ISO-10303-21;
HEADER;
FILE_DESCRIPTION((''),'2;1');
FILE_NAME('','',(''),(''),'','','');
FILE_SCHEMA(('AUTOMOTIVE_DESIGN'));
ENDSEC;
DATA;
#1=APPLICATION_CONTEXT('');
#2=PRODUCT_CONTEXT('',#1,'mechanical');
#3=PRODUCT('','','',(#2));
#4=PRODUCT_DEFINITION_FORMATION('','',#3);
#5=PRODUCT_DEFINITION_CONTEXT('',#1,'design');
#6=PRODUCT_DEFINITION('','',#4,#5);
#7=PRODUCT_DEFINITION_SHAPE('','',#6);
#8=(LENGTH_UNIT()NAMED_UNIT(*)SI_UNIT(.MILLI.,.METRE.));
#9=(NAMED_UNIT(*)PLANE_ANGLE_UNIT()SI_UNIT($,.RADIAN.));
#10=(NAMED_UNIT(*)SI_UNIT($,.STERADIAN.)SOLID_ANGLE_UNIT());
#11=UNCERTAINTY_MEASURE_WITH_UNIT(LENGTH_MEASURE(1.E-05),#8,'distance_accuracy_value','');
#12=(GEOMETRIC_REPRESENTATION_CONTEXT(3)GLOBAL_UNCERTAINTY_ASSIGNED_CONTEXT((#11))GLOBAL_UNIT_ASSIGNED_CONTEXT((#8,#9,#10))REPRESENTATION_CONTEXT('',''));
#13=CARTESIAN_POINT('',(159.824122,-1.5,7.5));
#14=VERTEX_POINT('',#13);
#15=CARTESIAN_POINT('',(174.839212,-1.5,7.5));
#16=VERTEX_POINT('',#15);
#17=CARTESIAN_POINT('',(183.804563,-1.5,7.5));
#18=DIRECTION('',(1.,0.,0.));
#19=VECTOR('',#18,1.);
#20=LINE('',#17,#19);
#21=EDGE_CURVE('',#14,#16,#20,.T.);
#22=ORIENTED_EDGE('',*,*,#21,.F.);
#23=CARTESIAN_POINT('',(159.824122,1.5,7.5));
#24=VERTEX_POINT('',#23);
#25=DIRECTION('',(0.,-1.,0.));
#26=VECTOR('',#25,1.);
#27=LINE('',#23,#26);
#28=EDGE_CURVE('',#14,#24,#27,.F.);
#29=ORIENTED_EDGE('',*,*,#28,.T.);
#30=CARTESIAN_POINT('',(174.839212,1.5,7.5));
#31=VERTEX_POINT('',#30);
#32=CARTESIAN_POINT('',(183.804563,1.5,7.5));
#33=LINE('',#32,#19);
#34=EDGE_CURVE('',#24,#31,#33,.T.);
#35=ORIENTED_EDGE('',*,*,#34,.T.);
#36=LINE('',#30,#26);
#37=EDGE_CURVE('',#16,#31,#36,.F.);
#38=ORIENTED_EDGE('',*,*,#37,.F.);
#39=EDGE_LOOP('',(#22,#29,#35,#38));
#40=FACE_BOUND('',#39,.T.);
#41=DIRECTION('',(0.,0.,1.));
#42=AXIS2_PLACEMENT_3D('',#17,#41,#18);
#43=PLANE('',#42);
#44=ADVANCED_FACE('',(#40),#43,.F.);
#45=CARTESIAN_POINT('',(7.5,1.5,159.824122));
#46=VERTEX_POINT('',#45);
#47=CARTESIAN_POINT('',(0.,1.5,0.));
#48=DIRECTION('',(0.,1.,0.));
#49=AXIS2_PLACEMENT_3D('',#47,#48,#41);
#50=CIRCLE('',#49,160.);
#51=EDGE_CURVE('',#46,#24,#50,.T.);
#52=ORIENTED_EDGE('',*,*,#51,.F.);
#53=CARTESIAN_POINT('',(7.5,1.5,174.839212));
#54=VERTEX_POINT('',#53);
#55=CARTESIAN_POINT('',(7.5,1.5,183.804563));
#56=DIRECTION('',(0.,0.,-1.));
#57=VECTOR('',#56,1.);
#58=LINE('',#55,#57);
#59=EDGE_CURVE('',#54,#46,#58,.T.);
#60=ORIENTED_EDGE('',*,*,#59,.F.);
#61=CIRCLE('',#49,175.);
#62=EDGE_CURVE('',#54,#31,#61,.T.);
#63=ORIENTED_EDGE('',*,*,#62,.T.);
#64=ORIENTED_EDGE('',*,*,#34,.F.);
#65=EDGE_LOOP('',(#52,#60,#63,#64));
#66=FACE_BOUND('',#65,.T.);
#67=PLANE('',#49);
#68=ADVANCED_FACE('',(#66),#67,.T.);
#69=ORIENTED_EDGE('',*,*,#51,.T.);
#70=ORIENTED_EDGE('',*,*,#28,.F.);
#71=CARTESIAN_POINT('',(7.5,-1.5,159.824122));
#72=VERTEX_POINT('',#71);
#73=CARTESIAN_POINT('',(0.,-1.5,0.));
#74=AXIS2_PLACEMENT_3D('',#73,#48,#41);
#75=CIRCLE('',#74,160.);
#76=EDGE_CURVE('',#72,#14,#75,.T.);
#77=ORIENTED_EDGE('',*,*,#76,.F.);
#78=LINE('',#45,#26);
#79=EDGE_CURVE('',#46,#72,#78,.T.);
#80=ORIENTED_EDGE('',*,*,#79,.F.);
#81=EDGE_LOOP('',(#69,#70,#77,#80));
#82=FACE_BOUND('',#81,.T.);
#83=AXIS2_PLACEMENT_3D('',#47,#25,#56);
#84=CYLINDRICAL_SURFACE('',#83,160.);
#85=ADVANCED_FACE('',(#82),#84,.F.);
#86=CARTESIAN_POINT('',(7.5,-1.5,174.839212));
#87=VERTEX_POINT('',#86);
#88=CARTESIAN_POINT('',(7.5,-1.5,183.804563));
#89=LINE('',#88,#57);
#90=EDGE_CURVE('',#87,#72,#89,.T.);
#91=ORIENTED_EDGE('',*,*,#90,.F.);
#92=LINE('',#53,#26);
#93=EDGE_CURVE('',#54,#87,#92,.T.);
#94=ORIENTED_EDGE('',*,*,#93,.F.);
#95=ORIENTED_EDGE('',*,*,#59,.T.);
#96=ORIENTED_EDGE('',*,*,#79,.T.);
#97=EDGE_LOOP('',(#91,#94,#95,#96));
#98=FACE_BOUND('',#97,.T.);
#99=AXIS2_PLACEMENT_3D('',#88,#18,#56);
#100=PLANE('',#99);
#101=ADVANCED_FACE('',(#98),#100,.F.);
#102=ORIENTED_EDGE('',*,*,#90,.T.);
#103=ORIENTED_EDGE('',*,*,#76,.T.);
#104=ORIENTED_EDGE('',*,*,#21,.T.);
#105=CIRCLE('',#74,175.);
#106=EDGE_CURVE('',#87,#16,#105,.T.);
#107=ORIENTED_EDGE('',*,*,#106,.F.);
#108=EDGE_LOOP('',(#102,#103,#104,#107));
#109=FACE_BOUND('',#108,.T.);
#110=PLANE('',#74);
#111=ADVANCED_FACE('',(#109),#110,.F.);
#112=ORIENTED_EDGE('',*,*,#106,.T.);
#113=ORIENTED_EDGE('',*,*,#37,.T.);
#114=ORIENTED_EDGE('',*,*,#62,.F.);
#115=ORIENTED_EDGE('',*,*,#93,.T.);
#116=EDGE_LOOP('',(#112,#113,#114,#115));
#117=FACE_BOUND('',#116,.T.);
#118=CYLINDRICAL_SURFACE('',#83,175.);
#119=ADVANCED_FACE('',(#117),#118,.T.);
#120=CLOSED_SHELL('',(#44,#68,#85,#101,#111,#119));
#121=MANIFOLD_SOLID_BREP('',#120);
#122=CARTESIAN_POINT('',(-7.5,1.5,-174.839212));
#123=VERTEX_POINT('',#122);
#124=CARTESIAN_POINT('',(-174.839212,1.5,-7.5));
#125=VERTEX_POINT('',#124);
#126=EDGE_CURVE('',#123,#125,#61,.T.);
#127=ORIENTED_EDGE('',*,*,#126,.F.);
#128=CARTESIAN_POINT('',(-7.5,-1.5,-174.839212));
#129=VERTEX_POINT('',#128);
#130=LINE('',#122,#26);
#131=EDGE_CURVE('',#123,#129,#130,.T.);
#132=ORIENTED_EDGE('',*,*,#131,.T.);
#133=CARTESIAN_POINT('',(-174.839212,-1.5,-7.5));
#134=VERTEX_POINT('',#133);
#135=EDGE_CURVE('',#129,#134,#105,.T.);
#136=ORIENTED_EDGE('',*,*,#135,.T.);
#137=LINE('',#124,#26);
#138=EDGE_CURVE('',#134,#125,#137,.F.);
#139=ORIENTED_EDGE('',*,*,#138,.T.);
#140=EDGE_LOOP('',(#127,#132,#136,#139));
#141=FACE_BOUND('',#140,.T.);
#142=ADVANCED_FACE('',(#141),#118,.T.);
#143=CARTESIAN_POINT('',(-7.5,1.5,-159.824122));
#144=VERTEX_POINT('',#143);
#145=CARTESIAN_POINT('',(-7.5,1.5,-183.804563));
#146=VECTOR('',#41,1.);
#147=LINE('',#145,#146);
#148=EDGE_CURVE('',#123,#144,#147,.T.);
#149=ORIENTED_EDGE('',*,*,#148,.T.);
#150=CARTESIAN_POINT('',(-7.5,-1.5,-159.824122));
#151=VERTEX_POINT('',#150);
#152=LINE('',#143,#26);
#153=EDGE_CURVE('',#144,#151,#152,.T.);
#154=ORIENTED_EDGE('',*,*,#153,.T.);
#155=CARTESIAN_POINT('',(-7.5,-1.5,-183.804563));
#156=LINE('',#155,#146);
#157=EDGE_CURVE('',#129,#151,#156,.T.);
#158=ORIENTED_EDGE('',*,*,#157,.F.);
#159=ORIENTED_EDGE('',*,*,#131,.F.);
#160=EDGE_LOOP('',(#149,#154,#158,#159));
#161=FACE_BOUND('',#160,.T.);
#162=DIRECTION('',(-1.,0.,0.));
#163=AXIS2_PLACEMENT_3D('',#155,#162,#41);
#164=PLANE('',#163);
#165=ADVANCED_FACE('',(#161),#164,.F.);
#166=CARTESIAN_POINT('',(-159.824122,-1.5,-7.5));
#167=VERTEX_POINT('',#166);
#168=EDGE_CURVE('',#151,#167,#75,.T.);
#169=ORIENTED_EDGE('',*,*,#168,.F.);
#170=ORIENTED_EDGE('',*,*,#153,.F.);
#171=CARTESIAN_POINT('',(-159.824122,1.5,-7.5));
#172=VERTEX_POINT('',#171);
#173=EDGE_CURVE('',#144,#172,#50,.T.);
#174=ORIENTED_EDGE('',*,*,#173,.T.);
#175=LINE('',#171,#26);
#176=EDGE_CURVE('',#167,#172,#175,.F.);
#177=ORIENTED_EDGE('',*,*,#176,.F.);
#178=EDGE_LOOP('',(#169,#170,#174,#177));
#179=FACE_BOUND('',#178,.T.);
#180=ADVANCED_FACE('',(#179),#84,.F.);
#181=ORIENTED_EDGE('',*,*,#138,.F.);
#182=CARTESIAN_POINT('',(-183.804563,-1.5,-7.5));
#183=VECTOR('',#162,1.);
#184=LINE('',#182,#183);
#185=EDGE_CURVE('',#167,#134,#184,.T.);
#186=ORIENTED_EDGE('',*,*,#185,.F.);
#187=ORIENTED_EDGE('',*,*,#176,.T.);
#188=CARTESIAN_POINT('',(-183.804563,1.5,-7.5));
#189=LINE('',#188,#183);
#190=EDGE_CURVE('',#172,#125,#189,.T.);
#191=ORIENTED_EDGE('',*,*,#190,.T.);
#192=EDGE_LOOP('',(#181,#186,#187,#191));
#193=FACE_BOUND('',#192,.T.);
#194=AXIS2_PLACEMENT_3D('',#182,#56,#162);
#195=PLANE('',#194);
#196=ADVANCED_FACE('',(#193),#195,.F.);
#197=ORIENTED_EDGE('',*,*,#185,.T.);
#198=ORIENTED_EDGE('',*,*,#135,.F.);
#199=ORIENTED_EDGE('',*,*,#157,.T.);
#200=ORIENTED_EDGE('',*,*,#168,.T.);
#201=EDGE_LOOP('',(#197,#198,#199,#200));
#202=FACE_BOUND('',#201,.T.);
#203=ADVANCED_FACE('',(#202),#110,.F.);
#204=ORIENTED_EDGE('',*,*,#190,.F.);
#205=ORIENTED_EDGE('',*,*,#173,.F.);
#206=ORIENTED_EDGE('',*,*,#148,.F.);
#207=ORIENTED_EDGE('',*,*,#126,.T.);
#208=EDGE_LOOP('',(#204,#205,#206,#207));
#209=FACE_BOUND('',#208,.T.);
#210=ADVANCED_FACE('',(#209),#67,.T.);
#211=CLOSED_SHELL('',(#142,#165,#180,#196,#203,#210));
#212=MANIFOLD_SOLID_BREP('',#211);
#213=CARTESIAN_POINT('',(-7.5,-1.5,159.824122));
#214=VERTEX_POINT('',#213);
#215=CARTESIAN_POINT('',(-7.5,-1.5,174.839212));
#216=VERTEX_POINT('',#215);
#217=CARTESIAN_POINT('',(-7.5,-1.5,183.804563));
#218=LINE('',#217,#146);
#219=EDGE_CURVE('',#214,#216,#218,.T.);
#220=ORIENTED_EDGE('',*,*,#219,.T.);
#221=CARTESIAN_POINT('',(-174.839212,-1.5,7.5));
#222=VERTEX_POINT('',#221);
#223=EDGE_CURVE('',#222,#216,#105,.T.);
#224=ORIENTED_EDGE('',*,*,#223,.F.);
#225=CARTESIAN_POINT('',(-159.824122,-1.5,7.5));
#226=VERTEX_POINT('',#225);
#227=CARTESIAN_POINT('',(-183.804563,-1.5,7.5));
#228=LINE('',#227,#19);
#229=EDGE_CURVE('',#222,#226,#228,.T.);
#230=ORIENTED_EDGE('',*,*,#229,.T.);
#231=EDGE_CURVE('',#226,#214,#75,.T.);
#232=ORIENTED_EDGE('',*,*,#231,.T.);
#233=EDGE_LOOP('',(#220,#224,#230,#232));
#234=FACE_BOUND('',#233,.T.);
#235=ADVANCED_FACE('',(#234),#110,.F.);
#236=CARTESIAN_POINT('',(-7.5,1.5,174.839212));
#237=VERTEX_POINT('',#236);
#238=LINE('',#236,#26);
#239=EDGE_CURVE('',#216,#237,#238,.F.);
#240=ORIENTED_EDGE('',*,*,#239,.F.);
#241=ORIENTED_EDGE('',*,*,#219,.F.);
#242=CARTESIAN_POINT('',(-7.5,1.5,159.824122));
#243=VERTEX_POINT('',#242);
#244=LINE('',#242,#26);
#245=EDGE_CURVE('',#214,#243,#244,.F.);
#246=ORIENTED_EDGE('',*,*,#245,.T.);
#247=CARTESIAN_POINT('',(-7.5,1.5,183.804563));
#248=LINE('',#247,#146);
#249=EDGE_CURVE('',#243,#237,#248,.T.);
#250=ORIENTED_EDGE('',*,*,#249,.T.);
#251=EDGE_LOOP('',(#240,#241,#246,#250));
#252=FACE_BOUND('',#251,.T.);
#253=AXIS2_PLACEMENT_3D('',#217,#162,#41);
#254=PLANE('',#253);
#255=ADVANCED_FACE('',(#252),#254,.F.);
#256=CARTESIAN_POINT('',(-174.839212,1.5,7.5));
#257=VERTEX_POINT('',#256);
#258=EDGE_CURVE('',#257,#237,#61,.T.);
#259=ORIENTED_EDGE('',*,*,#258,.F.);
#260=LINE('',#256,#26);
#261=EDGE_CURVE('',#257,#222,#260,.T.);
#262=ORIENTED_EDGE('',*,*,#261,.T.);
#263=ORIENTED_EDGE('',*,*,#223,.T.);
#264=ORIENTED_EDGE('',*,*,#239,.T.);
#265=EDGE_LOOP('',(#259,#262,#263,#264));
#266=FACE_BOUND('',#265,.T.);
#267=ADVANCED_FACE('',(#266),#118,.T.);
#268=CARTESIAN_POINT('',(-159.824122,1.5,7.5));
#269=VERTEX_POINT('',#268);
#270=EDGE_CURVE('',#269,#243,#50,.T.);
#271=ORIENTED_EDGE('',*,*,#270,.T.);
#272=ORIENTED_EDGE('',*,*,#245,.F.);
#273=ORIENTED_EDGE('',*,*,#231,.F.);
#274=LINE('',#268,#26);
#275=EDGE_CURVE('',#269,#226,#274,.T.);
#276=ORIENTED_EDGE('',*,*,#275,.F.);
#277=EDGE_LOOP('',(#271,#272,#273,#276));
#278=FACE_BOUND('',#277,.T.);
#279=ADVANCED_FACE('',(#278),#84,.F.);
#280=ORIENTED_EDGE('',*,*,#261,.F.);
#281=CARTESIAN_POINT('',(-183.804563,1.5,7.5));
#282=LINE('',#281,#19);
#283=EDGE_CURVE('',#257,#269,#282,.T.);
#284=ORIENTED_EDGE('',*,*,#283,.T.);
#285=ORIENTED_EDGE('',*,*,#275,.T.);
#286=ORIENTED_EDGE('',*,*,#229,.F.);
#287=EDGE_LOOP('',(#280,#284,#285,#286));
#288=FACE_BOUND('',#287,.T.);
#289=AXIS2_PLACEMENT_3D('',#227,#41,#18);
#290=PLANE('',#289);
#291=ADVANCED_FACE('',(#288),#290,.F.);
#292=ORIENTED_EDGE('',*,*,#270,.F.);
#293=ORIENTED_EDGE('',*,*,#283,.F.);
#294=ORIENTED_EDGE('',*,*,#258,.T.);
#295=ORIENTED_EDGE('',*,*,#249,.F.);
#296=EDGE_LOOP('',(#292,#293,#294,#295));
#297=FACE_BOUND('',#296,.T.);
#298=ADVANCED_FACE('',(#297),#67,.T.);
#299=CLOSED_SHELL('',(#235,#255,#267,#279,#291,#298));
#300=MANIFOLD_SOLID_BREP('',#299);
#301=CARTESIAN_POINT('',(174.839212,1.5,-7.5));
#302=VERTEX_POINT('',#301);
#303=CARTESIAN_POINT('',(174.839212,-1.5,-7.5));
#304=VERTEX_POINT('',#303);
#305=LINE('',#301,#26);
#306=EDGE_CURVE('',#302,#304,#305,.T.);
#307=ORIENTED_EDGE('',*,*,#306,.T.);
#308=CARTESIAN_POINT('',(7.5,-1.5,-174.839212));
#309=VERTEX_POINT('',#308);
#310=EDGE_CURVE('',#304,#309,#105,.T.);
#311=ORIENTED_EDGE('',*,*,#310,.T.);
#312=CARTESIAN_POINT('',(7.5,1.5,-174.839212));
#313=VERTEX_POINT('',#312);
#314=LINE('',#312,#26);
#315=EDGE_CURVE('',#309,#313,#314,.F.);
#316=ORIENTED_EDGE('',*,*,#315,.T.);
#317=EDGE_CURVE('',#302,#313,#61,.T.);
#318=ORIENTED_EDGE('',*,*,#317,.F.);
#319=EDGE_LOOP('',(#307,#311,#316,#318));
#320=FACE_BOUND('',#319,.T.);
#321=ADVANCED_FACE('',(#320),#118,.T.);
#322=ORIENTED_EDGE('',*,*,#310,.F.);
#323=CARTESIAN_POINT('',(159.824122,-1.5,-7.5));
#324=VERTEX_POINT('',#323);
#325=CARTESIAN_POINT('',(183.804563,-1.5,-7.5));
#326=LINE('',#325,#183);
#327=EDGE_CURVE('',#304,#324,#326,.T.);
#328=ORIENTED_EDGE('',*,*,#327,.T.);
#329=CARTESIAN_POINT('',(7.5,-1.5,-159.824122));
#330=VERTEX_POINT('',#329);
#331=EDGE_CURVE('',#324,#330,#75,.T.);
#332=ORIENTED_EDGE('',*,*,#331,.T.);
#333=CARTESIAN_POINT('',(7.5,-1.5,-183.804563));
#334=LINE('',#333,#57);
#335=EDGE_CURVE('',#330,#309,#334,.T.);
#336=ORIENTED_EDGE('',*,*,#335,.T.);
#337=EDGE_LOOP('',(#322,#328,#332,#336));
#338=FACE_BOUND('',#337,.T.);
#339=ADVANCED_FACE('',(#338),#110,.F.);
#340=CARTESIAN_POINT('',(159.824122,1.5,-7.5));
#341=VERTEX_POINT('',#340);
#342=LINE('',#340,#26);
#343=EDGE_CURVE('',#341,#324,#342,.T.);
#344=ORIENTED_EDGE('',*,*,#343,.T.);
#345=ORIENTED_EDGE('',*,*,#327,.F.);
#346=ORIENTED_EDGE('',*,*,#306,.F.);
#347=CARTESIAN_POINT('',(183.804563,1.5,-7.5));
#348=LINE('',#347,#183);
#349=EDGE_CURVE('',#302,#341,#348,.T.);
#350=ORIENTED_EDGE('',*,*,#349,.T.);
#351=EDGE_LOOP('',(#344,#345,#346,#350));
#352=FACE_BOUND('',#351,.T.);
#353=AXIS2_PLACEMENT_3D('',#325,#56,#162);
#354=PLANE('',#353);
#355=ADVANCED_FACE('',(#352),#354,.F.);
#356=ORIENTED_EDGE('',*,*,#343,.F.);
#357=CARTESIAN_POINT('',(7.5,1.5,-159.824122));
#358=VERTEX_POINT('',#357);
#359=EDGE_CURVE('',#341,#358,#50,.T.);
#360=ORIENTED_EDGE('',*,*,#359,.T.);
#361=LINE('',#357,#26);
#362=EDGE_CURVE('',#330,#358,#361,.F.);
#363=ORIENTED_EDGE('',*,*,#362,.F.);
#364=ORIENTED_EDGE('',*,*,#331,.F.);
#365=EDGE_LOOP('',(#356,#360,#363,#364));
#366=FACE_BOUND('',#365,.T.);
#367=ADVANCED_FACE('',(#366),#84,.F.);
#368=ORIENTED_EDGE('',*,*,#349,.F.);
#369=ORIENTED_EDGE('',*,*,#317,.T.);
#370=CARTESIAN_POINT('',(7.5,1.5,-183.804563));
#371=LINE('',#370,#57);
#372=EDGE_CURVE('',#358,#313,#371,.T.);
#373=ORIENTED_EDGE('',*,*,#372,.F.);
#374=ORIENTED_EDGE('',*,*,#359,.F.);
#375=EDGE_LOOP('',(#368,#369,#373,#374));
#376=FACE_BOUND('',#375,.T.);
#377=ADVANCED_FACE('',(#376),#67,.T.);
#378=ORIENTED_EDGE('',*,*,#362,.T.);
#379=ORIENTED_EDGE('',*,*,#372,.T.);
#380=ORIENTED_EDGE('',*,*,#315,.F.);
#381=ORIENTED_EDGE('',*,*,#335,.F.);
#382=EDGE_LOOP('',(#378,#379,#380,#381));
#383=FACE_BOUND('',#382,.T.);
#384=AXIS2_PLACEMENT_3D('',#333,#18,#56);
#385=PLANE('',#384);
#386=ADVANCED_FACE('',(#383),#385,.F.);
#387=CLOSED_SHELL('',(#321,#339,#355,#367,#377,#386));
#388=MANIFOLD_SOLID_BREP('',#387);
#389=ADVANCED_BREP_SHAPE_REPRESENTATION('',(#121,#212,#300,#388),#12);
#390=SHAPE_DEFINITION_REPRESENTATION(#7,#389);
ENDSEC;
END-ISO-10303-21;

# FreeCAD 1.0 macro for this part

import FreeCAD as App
import Part
import Sketcher

V = App.Vector

doc = App.newDocument("Part")
body = doc.addObject("PartDesign::Body", "Body")
body.AllowCompound = True

# Sketch on XZ plane
sketch1 = doc.addObject("Sketcher::SketchObject", "Sketch")
body.addObject(sketch1)
sketch1.AttachmentSupport = (doc.XZ_Plane, [""])
sketch1.MapMode = "FlatFace"
sketch1.addGeometry(Part.Circle(V(0, 0, 0), V(0, 0, 1), 175), False)
sketch1.addGeometry(Part.Circle(V(0, 0, 0), V(0, 0, 1), 160), False)
sketch1.addConstraint(Sketcher.Constraint("Coincident", 0, 3, -1, 1))
sketch1.addConstraint(Sketcher.Constraint("Coincident", 1, 3, -1, 1))
sketch1.addConstraint(Sketcher.Constraint("Diameter", 0, 350.0))
sketch1.addConstraint(Sketcher.Constraint("Diameter", 1, 320.0))
pad1 = doc.addObject("PartDesign::Pad", "Pad")
body.addObject(pad1)
pad1.Profile = sketch1
pad1.Length = 3
pad1.Midplane = True

# Sketch on XZ plane
sketch2 = doc.addObject("Sketcher::SketchObject", "Sketch001")
body.addObject(sketch2)
sketch2.AttachmentSupport = (doc.XZ_Plane, [""])
sketch2.MapMode = "FlatFace"
sketch2.addGeometry(Part.LineSegment(V(151, -8, 0), V(151, 8, 0)), False)
sketch2.addGeometry(Part.LineSegment(V(151, 8, 0), V(184, 8, 0)), False)
sketch2.addGeometry(Part.LineSegment(V(184, 8, 0), V(184, -8, 0)), False)
sketch2.addGeometry(Part.LineSegment(V(184, -8, 0), V(151, -8, 0)), False)
sketch2.addConstraint(Sketcher.Constraint("Coincident", 0, 2, 1, 1))
sketch2.addConstraint(Sketcher.Constraint("Coincident", 1, 2, 2, 1))
sketch2.addConstraint(Sketcher.Constraint("Coincident", 2, 2, 3, 1))
sketch2.addConstraint(Sketcher.Constraint("Coincident", 3, 2, 0, 1))
sketch2.addConstraint(Sketcher.Constraint("Vertical", 0))
sketch2.addConstraint(Sketcher.Constraint("Horizontal", 1))
sketch2.addConstraint(Sketcher.Constraint("Vertical", 2))
sketch2.addConstraint(Sketcher.Constraint("Horizontal", 3))
sketch2.addConstraint(Sketcher.Constraint("DistanceY", 0, 1, 0, 2, 15.0))
sketch2.addConstraint(Sketcher.Constraint("DistanceY", -1, 1, 0, 2, 7.5))
sketch2.addConstraint(Sketcher.Constraint("DistanceX", 1, 1, 1, 2, 32.609126))
sketch2.addConstraint(Sketcher.Constraint("DistanceX", -1, 1, 0, 2, 151.195437))
pocket1 = doc.addObject("PartDesign::Pocket", "Pocket")
body.addObject(pocket1)
pocket1.Profile = sketch2
pocket1.Length = 496.983838
pocket1.Midplane = True
doc.recompute()

polarpattern = doc.addObject("PartDesign::PolarPattern", "PolarPattern")
body.addObject(polarpattern)
polarpattern.Originals = [pocket1]
polarpattern.Axis = (doc.Y_Axis, [""])
polarpattern.Angle = 360
polarpattern.Occurrences = 4
body.Tip = polarpattern

doc.recompute()
